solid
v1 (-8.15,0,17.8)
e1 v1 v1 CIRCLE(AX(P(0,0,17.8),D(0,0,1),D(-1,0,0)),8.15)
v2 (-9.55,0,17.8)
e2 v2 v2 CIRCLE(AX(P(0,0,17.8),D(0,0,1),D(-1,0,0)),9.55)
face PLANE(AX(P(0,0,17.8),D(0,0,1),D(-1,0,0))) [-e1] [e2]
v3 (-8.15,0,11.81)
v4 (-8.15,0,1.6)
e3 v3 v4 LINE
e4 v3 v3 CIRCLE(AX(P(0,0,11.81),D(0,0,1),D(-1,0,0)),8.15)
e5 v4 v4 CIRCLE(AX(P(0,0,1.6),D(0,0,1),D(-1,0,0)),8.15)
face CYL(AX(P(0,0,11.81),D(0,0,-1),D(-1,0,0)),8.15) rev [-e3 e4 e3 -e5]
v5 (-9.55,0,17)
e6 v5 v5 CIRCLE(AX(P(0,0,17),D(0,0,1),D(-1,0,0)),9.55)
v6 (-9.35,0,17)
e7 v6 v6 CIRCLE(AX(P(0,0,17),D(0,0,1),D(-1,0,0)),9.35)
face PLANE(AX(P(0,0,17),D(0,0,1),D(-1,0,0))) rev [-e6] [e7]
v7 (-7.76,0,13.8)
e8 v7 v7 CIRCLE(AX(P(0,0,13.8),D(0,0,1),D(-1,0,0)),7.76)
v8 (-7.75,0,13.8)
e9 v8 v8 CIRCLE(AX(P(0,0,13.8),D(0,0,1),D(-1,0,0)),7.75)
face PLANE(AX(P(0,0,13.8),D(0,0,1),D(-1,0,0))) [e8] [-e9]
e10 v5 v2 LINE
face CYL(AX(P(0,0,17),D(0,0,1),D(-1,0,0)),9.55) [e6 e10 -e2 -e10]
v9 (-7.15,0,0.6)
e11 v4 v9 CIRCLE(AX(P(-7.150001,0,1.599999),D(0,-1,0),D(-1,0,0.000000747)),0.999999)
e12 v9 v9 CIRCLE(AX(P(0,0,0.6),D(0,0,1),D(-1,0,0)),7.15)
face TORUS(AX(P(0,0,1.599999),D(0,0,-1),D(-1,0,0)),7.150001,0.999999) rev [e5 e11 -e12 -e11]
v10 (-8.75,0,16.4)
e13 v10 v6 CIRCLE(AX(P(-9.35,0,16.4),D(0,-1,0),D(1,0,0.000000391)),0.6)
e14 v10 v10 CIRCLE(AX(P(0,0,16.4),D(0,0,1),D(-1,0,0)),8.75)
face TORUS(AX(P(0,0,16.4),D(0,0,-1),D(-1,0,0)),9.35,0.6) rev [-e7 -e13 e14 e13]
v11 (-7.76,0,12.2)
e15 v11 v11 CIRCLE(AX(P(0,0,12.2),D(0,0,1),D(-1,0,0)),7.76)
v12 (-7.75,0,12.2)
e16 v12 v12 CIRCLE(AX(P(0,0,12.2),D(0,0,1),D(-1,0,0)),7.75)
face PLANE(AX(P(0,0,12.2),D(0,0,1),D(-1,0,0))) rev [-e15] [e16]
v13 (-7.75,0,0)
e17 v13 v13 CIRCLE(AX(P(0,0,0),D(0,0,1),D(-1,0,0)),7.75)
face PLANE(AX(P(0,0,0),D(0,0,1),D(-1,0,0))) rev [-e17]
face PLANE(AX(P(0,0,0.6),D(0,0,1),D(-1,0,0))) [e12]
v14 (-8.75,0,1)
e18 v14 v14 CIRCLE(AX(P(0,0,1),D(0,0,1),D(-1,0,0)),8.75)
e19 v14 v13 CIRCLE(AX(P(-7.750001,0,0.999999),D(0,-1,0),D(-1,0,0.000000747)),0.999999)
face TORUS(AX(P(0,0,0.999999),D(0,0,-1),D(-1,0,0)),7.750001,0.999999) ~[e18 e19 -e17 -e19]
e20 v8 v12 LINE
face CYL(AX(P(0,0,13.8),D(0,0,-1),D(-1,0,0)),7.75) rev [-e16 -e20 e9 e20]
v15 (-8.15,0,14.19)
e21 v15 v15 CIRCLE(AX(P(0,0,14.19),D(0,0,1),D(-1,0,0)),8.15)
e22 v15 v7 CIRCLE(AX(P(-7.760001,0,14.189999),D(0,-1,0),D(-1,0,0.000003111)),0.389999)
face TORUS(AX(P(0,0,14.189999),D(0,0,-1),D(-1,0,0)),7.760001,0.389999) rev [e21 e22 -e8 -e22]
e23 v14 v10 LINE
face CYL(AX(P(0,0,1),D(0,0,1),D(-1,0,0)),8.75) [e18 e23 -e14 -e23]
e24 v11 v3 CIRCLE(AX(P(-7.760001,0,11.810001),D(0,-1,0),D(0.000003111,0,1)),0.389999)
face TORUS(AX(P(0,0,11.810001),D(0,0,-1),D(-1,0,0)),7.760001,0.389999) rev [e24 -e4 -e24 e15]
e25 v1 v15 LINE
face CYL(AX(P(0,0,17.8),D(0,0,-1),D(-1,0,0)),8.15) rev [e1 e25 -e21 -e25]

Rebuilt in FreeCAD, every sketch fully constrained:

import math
import FreeCAD as App
import Part
import Sketcher

V = App.Vector

doc = App.newDocument("Part")
body = doc.addObject("PartDesign::Body", "Body")

sketch1 = doc.addObject("Sketcher::SketchObject", "Sketch")
body.addObject(sketch1)
sketch1.AttachmentSupport = (doc.XZ_Plane, [""])
sketch1.MapMode = "FlatFace"
sketch1.addGeometry([
    Part.LineSegment(V(-7.75, 0, 0), V(0, 0, 0)),
    Part.LineSegment(V(0, 0, 0), V(0, 0.6, 0)),
    Part.LineSegment(V(0, 0.6, 0), V(-7.15, 0.6, 0)),
    Part.ArcOfCircle(Part.Circle(V(-7.15, 1.6, 0), V(0, 0, 1), 1), math.radians(180), math.radians(270)),
    Part.LineSegment(V(-8.15, 1.6, 0), V(-8.15, 11.81, 0)),
    Part.ArcOfCircle(Part.Circle(V(-7.76, 11.81, 0), V(0, 0, 1), 0.39), math.radians(90), math.radians(180)),
    Part.LineSegment(V(-7.76, 12.2, 0), V(-7.75, 12.2, 0)),
    Part.LineSegment(V(-7.75, 12.2, 0), V(-7.75, 13.8, 0)),
    Part.LineSegment(V(-7.75, 13.8, 0), V(-7.76, 13.8, 0)),
    Part.ArcOfCircle(Part.Circle(V(-7.76, 14.19, 0), V(0, 0, 1), 0.39), math.radians(180), math.radians(270)),
    Part.LineSegment(V(-8.15, 14.19, 0), V(-8.15, 17.8, 0)),
    Part.LineSegment(V(-8.15, 17.8, 0), V(-9.55, 17.8, 0)),
    Part.LineSegment(V(-9.55, 17.8, 0), V(-9.55, 17, 0)),
    Part.LineSegment(V(-9.55, 17, 0), V(-9.35, 17, 0)),
    Part.ArcOfCircle(Part.Circle(V(-9.35, 16.4, 0), V(0, 0, 1), 0.6), math.radians(0), math.radians(90)),
    Part.LineSegment(V(-8.75, 16.4, 0), V(-8.75, 1, 0)),
    Part.ArcOfCircle(Part.Circle(V(-7.75, 1, 0), V(0, 0, 1), 1), math.radians(180), math.radians(270)),
], False)
sketch1.addConstraint([
    Sketcher.Constraint("Coincident", 0, 2, 1, 1),
    Sketcher.Constraint("Coincident", 1, 2, 2, 1),
    Sketcher.Constraint("Tangent", 2, 2, 3, 2),
    Sketcher.Constraint("Tangent", 3, 1, 4, 1),
    Sketcher.Constraint("Coincident", 4, 2, 5, 2),
    Sketcher.Constraint("Coincident", 5, 1, 6, 1),
    Sketcher.Constraint("Coincident", 6, 2, 7, 1),
    Sketcher.Constraint("Coincident", 7, 2, 8, 1),
    Sketcher.Constraint("Coincident", 8, 2, 9, 2),
    Sketcher.Constraint("Coincident", 9, 1, 10, 1),
    Sketcher.Constraint("Coincident", 10, 2, 11, 1),
    Sketcher.Constraint("Coincident", 11, 2, 12, 1),
    Sketcher.Constraint("Coincident", 12, 2, 13, 1),
    Sketcher.Constraint("Tangent", 13, 2, 14, 2),
    Sketcher.Constraint("Tangent", 14, 1, 15, 1),
    Sketcher.Constraint("Tangent", 15, 2, 16, 1),
    Sketcher.Constraint("Tangent", 16, 2, 0, 1),
    Sketcher.Constraint("Horizontal", 0),
    Sketcher.Constraint("Vertical", 1),
    Sketcher.Constraint("Horizontal", 2),
    Sketcher.Constraint("Vertical", 4),
    Sketcher.Constraint("Horizontal", 6),
    Sketcher.Constraint("Vertical", 7),
    Sketcher.Constraint("Horizontal", 8),
    Sketcher.Constraint("Vertical", 10),
    Sketcher.Constraint("Horizontal", 11),
    Sketcher.Constraint("Vertical", 12),
    Sketcher.Constraint("Horizontal", 13),
    Sketcher.Constraint("Vertical", 15),
    Sketcher.Constraint("Coincident", 0, 2, -1, 1),
    Sketcher.Constraint("Equal", 5, 9),
    Sketcher.Constraint("Equal", 3, 16),
    Sketcher.Constraint("Horizontal", 5, 3, 4, 2),
    Sketcher.Constraint("Vertical", 5, 3, 9, 3),
    Sketcher.Constraint("Vertical", 9, 3, 5, 1),
    Sketcher.Constraint("Vertical", 16, 3, 6, 2),
    Sketcher.Constraint("Vertical", 5, 1, 8, 2),
    Sketcher.Constraint("Radius", 3, 0.999999),
    Sketcher.Constraint("Radius", 14, 0.6),
    Sketcher.Constraint("Radius", 5, 0.389999),
    Sketcher.Constraint("DistanceX", 11, 2, 11, 1, 1.4),
    Sketcher.Constraint("DistanceX", 13, 1, 13, 2, 0.2),
    Sketcher.Constraint("DistanceY", 1, 1, 1, 2, 0.6),
    Sketcher.Constraint("DistanceY", 7, 1, 7, 2, 1.6),
    Sketcher.Constraint("DistanceY", 12, 2, 12, 1, 0.8),
    Sketcher.Constraint("DistanceY", 15, 2, 15, 1, 15.4),
    Sketcher.Constraint("DistanceY", 8, 2, 10, 2, 4.0),
    Sketcher.Constraint("DistanceX", 0, 1, 0, 2, 7.75),
    Sketcher.Constraint("DistanceY", 10, 1, 10, 2, 3.61),
])
revolution = doc.addObject("PartDesign::Revolution", "Revolution")
body.addObject(revolution)
revolution.Profile = sketch1
revolution.ReferenceAxis = (sketch1, ["V_Axis"])
revolution.Angle = 360

doc.recompute()
